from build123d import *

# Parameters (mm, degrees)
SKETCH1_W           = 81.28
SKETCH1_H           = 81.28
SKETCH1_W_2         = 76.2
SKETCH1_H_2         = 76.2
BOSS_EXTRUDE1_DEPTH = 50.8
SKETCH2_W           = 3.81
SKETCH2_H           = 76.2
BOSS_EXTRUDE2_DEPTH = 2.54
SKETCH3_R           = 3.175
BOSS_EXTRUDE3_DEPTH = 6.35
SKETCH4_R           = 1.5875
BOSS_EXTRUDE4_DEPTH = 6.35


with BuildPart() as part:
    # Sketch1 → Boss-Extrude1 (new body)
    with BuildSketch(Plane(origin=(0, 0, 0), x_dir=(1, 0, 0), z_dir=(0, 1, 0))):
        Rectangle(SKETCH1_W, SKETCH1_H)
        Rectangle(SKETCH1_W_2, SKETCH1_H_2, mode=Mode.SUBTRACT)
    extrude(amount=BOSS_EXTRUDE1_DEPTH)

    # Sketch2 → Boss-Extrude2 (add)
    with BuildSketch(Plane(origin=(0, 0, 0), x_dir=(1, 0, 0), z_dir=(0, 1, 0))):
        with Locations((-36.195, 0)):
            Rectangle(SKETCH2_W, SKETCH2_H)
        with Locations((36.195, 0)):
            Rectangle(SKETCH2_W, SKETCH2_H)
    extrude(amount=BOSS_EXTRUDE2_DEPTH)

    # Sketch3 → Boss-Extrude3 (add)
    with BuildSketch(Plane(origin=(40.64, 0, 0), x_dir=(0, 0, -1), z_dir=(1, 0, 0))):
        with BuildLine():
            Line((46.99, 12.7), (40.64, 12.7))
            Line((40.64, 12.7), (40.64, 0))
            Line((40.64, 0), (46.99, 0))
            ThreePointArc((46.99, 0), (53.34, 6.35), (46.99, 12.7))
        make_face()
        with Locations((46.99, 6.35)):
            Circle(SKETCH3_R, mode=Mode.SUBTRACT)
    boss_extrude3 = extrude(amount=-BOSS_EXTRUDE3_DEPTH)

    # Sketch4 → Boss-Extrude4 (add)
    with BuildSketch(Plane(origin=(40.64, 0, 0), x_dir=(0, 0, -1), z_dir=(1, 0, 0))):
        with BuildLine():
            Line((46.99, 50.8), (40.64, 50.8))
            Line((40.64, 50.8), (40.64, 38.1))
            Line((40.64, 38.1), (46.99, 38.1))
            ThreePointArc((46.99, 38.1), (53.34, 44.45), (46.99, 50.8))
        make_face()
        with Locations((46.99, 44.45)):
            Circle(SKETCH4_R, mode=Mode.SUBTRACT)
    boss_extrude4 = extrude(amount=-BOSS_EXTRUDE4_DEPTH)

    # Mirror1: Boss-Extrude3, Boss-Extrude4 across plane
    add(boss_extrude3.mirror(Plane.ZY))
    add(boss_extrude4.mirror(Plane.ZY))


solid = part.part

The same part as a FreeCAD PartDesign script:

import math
import FreeCAD as App
import Part
import Sketcher

V = App.Vector
Q = App.Units.Quantity


def add_polygon(sketch, points):
    """Adds a closed chain of lines whose ends are joined by coincident constraints."""
    first, n = sketch.GeometryCount, len(points)
    for a, b in zip(points, points[1:] + points[:1]):
        sketch.addGeometry(Part.LineSegment(App.Vector(*a, 0), App.Vector(*b, 0)), False)
    for i in range(n):
        sketch.addConstraint(Sketcher.Constraint("Coincident", first + i, 2, first + (i + 1) % n, 1))

doc = App.newDocument("Part")
params = doc.addObject("Spreadsheet::Sheet", "Params")
for row, (alias, value) in enumerate([
    ("sketch1_width", "3 in"),
    ("sketch1_width2", "3.2 in"),
    ("pad1_length", "2 in"),
    ("sketch2_height", "3 in"),
    ("sketch2_width", "0.15 in"),
    ("pad2_length", "0.1 in"),
    ("sketch3_diameter", "0.25 in"),
    ("sketch3_radius", "0.25 in"),
    ("sketch3_height", "0.25 in"),
    ("pad3_length", "0.25 in"),
    ("sketch4_radius", "0.25 in"),
    ("sketch4_diameter", "0.125 in"),
    ("sketch4_height", "0.25 in"),
    ("pad4_length", "0.25 in"),
], start=1):
    params.set(f"A{row}", alias)
    params.set(f"B{row}", "=" + value)
    params.setAlias(f"B{row}", alias)

body = doc.addObject("PartDesign::Body", "Body")

# Sketch on XZ plane
sketch1 = body.newObject("Sketcher::SketchObject", "Sketch")
sketch1.AttachmentSupport = (doc.getObject("XZ_Plane"), [""])
sketch1.MapMode = "FlatFace"
add_polygon(sketch1, [(-41, -41), (-41, 41), (41, 41), (41, -41)])  # lines 0-3
add_polygon(sketch1, [(38, 38), (-38, 38), (-38, -38), (38, -38)])  # lines 4-7
sketch1.addConstraint(Sketcher.Constraint("Vertical", 0))
sketch1.addConstraint(Sketcher.Constraint("Horizontal", 1))
sketch1.addConstraint(Sketcher.Constraint("Vertical", 2))
sketch1.addConstraint(Sketcher.Constraint("Horizontal", 3))
sketch1.addConstraint(Sketcher.Constraint("Horizontal", 4))
sketch1.addConstraint(Sketcher.Constraint("Vertical", 5))
sketch1.addConstraint(Sketcher.Constraint("Horizontal", 6))
sketch1.addConstraint(Sketcher.Constraint("Vertical", 7))
sketch1.addConstraint(Sketcher.Constraint("Symmetric", 0, 2, 2, 2, -1, 1))
sketch1.addConstraint(Sketcher.Constraint("Symmetric", 4, 2, 6, 2, -1, 1))
sketch1.addConstraint(Sketcher.Constraint("Equal", 3, 0))
sketch1.addConstraint(Sketcher.Constraint("Equal", 6, 5))
sketch1.addConstraint(Sketcher.Constraint("DistanceX", 4, 2, 4, 1, Q("3 in")))
sketch1.addConstraint(Sketcher.Constraint("DistanceX", 1, 1, 1, 2, Q("3.2 in")))
sketch1.setExpression("Constraints[20]", "Params.sketch1_width")
sketch1.setExpression("Constraints[21]", "Params.sketch1_width2")
pad1 = body.newObject("PartDesign::Pad", "Pad")
pad1.Profile = sketch1
pad1.setExpression("Length", "Params.pad1_length")
pad1.Reversed = True

# Sketch on XZ plane
sketch2 = body.newObject("Sketcher::SketchObject", "Sketch001")
sketch2.AttachmentSupport = (doc.getObject("XZ_Plane"), [""])
sketch2.MapMode = "FlatFace"
add_polygon(sketch2, [(-38.1, -38.1), (-38.1, 38.1), (-34.3, 38.1), (-34.3, -38.1)])  # lines 0-3
add_polygon(sketch2, [(34.3, -38.1), (34.3, 38.1), (38.1, 38.1), (38.1, -38.1)])  # lines 4-7
sketch2.addConstraint(Sketcher.Constraint("Vertical", 0))
sketch2.addConstraint(Sketcher.Constraint("Horizontal", 1))
sketch2.addConstraint(Sketcher.Constraint("Vertical", 2))
sketch2.addConstraint(Sketcher.Constraint("Horizontal", 3))
sketch2.addConstraint(Sketcher.Constraint("Vertical", 4))
sketch2.addConstraint(Sketcher.Constraint("Horizontal", 5))
sketch2.addConstraint(Sketcher.Constraint("Vertical", 6))
sketch2.addConstraint(Sketcher.Constraint("Horizontal", 7))
sketch2.addConstraint(Sketcher.Constraint("Symmetric", 2, 2, 4, 2, -1, 1))
sketch2.addConstraint(Sketcher.Constraint("Symmetric", 0, 2, 6, 2, -1, 1))
sketch2.addConstraint(Sketcher.Constraint("Horizontal", 1, 2, 4, 2))
sketch2.addConstraint(Sketcher.Constraint("DistanceY", 0, 1, 0, 2, Q("3 in")))
sketch2.addConstraint(Sketcher.Constraint("DistanceX", 0, 2, 5, 2, Q("3 in")))
sketch2.addConstraint(Sketcher.Constraint("DistanceX", 1, 1, 1, 2, Q("0.15 in")))
sketch2.setExpression("Constraints[19]", "Params.sketch2_height")
sketch2.setExpression("Constraints[21]", "Params.sketch2_width")
pad2 = body.newObject("PartDesign::Pad", "Pad001")
pad2.Profile = sketch2
pad2.setExpression("Length", "Params.pad2_length")
pad2.Reversed = True

# Sketch on YZ plane
sketch3 = body.newObject("Sketcher::SketchObject", "Sketch002")
sketch3.AttachmentSupport = (doc.getObject("YZ_Plane"), [""])
sketch3.MapMode = "FlatFace"
sketch3.AttachmentOffset = App.Placement(V(0, 0, 1.6 * 25.4), App.Rotation())
sketch3.addGeometry(Part.LineSegment(V(12.7, -47, 0), V(12.7, -40.6, 0)), False)
sketch3.addGeometry(Part.LineSegment(V(12.7, -40.6, 0), V(0, -40.6, 0)), False)
sketch3.addGeometry(Part.LineSegment(V(0, -40.6, 0), V(0, -47, 0)), False)
sketch3.addGeometry(Part.ArcOfCircle(Part.Circle(V(6.3, -47, 0), V(0, 0, 1), 6.3), math.radians(180), math.radians(360)), False)
sketch3.addGeometry(Part.Circle(V(6.3, -47, 0), V(0, 0, 1), 3.2), False)
sketch3.addConstraint(Sketcher.Constraint("Coincident", 0, 2, 1, 1))
sketch3.addConstraint(Sketcher.Constraint("Coincident", 1, 2, 2, 1))
sketch3.addConstraint(Sketcher.Constraint("Tangent", 2, 2, 3, 1))
sketch3.addConstraint(Sketcher.Constraint("Tangent", 3, 2, 0, 1))
sketch3.addConstraint(Sketcher.Constraint("Vertical", 0))
sketch3.addConstraint(Sketcher.Constraint("Horizontal", 1))
sketch3.addConstraint(Sketcher.Constraint("Vertical", 2))
sketch3.addConstraint(Sketcher.Constraint("Coincident", 4, 3, 3, 3))
sketch3.addConstraint(Sketcher.Constraint("PointOnObject", 1, 2, -2))
sketch3.addConstraint(Sketcher.Constraint("Diameter", 4, Q("0.25 in")))
sketch3.addConstraint(Sketcher.Constraint("Radius", 3, Q("0.25 in")))
sketch3.addConstraint(Sketcher.Constraint("DistanceY", 0, 1, 0, 2, Q("0.25 in")))
sketch3.addConstraint(Sketcher.Constraint("DistanceY", 0, 2, -1, 1, Q("1.6 in")))
sketch3.setExpression("Constraints[9]", "Params.sketch3_diameter")
sketch3.setExpression("Constraints[10]", "Params.sketch3_radius")
sketch3.setExpression("Constraints[11]", "Params.sketch3_height")
pad3 = body.newObject("PartDesign::Pad", "Pad002")
pad3.Profile = sketch3
pad3.setExpression("Length", "Params.pad3_length")
pad3.Reversed = True

# Sketch on YZ plane
sketch4 = body.newObject("Sketcher::SketchObject", "Sketch003")
sketch4.AttachmentSupport = (doc.getObject("YZ_Plane"), [""])
sketch4.MapMode = "FlatFace"
sketch4.AttachmentOffset = App.Placement(V(0, 0, 1.6 * 25.4), App.Rotation())
sketch4.addGeometry(Part.LineSegment(V(50.8, -47, 0), V(50.8, -40.6, 0)), False)
sketch4.addGeometry(Part.LineSegment(V(50.8, -40.6, 0), V(38.1, -40.6, 0)), False)
sketch4.addGeometry(Part.LineSegment(V(38.1, -40.6, 0), V(38.1, -47, 0)), False)
sketch4.addGeometry(Part.ArcOfCircle(Part.Circle(V(44.5, -47, 0), V(0, 0, 1), 6.3), math.radians(180), math.radians(360)), False)
sketch4.addGeometry(Part.Circle(V(44.5, -47, 0), V(0, 0, 1), 1.6), False)
sketch4.addConstraint(Sketcher.Constraint("Coincident", 0, 2, 1, 1))
sketch4.addConstraint(Sketcher.Constraint("Coincident", 1, 2, 2, 1))
sketch4.addConstraint(Sketcher.Constraint("Tangent", 2, 2, 3, 1))
sketch4.addConstraint(Sketcher.Constraint("Tangent", 3, 2, 0, 1))
sketch4.addConstraint(Sketcher.Constraint("Vertical", 0))
sketch4.addConstraint(Sketcher.Constraint("Horizontal", 1))
sketch4.addConstraint(Sketcher.Constraint("Vertical", 2))
sketch4.addConstraint(Sketcher.Constraint("Coincident", 4, 3, 3, 3))
sketch4.addConstraint(Sketcher.Constraint("Radius", 3, Q("0.25 in")))
sketch4.addConstraint(Sketcher.Constraint("Diameter", 4, Q("0.125 in")))
sketch4.addConstraint(Sketcher.Constraint("DistanceX", -1, 1, 0, 2, Q("2 in")))
sketch4.addConstraint(Sketcher.Constraint("DistanceY", 0, 1, 0, 2, Q("0.25 in")))
sketch4.addConstraint(Sketcher.Constraint("DistanceY", 0, 2, -1, 1, Q("1.6 in")))
sketch4.setExpression("Constraints[8]", "Params.sketch4_radius")
sketch4.setExpression("Constraints[9]", "Params.sketch4_diameter")
sketch4.setExpression("Constraints[11]", "Params.sketch4_height")
pad4 = body.newObject("PartDesign::Pad", "Pad003")
pad4.Profile = sketch4
pad4.setExpression("Length", "Params.pad4_length")
pad4.Reversed = True
doc.recompute()

mirrored = body.newObject("PartDesign::Mirrored", "Mirrored")
mirrored.Originals = [pad3, pad4]
mirrored.MirrorPlane = (doc.getObject("YZ_Plane"), [""])
body.Tip = mirrored

doc.recompute()
